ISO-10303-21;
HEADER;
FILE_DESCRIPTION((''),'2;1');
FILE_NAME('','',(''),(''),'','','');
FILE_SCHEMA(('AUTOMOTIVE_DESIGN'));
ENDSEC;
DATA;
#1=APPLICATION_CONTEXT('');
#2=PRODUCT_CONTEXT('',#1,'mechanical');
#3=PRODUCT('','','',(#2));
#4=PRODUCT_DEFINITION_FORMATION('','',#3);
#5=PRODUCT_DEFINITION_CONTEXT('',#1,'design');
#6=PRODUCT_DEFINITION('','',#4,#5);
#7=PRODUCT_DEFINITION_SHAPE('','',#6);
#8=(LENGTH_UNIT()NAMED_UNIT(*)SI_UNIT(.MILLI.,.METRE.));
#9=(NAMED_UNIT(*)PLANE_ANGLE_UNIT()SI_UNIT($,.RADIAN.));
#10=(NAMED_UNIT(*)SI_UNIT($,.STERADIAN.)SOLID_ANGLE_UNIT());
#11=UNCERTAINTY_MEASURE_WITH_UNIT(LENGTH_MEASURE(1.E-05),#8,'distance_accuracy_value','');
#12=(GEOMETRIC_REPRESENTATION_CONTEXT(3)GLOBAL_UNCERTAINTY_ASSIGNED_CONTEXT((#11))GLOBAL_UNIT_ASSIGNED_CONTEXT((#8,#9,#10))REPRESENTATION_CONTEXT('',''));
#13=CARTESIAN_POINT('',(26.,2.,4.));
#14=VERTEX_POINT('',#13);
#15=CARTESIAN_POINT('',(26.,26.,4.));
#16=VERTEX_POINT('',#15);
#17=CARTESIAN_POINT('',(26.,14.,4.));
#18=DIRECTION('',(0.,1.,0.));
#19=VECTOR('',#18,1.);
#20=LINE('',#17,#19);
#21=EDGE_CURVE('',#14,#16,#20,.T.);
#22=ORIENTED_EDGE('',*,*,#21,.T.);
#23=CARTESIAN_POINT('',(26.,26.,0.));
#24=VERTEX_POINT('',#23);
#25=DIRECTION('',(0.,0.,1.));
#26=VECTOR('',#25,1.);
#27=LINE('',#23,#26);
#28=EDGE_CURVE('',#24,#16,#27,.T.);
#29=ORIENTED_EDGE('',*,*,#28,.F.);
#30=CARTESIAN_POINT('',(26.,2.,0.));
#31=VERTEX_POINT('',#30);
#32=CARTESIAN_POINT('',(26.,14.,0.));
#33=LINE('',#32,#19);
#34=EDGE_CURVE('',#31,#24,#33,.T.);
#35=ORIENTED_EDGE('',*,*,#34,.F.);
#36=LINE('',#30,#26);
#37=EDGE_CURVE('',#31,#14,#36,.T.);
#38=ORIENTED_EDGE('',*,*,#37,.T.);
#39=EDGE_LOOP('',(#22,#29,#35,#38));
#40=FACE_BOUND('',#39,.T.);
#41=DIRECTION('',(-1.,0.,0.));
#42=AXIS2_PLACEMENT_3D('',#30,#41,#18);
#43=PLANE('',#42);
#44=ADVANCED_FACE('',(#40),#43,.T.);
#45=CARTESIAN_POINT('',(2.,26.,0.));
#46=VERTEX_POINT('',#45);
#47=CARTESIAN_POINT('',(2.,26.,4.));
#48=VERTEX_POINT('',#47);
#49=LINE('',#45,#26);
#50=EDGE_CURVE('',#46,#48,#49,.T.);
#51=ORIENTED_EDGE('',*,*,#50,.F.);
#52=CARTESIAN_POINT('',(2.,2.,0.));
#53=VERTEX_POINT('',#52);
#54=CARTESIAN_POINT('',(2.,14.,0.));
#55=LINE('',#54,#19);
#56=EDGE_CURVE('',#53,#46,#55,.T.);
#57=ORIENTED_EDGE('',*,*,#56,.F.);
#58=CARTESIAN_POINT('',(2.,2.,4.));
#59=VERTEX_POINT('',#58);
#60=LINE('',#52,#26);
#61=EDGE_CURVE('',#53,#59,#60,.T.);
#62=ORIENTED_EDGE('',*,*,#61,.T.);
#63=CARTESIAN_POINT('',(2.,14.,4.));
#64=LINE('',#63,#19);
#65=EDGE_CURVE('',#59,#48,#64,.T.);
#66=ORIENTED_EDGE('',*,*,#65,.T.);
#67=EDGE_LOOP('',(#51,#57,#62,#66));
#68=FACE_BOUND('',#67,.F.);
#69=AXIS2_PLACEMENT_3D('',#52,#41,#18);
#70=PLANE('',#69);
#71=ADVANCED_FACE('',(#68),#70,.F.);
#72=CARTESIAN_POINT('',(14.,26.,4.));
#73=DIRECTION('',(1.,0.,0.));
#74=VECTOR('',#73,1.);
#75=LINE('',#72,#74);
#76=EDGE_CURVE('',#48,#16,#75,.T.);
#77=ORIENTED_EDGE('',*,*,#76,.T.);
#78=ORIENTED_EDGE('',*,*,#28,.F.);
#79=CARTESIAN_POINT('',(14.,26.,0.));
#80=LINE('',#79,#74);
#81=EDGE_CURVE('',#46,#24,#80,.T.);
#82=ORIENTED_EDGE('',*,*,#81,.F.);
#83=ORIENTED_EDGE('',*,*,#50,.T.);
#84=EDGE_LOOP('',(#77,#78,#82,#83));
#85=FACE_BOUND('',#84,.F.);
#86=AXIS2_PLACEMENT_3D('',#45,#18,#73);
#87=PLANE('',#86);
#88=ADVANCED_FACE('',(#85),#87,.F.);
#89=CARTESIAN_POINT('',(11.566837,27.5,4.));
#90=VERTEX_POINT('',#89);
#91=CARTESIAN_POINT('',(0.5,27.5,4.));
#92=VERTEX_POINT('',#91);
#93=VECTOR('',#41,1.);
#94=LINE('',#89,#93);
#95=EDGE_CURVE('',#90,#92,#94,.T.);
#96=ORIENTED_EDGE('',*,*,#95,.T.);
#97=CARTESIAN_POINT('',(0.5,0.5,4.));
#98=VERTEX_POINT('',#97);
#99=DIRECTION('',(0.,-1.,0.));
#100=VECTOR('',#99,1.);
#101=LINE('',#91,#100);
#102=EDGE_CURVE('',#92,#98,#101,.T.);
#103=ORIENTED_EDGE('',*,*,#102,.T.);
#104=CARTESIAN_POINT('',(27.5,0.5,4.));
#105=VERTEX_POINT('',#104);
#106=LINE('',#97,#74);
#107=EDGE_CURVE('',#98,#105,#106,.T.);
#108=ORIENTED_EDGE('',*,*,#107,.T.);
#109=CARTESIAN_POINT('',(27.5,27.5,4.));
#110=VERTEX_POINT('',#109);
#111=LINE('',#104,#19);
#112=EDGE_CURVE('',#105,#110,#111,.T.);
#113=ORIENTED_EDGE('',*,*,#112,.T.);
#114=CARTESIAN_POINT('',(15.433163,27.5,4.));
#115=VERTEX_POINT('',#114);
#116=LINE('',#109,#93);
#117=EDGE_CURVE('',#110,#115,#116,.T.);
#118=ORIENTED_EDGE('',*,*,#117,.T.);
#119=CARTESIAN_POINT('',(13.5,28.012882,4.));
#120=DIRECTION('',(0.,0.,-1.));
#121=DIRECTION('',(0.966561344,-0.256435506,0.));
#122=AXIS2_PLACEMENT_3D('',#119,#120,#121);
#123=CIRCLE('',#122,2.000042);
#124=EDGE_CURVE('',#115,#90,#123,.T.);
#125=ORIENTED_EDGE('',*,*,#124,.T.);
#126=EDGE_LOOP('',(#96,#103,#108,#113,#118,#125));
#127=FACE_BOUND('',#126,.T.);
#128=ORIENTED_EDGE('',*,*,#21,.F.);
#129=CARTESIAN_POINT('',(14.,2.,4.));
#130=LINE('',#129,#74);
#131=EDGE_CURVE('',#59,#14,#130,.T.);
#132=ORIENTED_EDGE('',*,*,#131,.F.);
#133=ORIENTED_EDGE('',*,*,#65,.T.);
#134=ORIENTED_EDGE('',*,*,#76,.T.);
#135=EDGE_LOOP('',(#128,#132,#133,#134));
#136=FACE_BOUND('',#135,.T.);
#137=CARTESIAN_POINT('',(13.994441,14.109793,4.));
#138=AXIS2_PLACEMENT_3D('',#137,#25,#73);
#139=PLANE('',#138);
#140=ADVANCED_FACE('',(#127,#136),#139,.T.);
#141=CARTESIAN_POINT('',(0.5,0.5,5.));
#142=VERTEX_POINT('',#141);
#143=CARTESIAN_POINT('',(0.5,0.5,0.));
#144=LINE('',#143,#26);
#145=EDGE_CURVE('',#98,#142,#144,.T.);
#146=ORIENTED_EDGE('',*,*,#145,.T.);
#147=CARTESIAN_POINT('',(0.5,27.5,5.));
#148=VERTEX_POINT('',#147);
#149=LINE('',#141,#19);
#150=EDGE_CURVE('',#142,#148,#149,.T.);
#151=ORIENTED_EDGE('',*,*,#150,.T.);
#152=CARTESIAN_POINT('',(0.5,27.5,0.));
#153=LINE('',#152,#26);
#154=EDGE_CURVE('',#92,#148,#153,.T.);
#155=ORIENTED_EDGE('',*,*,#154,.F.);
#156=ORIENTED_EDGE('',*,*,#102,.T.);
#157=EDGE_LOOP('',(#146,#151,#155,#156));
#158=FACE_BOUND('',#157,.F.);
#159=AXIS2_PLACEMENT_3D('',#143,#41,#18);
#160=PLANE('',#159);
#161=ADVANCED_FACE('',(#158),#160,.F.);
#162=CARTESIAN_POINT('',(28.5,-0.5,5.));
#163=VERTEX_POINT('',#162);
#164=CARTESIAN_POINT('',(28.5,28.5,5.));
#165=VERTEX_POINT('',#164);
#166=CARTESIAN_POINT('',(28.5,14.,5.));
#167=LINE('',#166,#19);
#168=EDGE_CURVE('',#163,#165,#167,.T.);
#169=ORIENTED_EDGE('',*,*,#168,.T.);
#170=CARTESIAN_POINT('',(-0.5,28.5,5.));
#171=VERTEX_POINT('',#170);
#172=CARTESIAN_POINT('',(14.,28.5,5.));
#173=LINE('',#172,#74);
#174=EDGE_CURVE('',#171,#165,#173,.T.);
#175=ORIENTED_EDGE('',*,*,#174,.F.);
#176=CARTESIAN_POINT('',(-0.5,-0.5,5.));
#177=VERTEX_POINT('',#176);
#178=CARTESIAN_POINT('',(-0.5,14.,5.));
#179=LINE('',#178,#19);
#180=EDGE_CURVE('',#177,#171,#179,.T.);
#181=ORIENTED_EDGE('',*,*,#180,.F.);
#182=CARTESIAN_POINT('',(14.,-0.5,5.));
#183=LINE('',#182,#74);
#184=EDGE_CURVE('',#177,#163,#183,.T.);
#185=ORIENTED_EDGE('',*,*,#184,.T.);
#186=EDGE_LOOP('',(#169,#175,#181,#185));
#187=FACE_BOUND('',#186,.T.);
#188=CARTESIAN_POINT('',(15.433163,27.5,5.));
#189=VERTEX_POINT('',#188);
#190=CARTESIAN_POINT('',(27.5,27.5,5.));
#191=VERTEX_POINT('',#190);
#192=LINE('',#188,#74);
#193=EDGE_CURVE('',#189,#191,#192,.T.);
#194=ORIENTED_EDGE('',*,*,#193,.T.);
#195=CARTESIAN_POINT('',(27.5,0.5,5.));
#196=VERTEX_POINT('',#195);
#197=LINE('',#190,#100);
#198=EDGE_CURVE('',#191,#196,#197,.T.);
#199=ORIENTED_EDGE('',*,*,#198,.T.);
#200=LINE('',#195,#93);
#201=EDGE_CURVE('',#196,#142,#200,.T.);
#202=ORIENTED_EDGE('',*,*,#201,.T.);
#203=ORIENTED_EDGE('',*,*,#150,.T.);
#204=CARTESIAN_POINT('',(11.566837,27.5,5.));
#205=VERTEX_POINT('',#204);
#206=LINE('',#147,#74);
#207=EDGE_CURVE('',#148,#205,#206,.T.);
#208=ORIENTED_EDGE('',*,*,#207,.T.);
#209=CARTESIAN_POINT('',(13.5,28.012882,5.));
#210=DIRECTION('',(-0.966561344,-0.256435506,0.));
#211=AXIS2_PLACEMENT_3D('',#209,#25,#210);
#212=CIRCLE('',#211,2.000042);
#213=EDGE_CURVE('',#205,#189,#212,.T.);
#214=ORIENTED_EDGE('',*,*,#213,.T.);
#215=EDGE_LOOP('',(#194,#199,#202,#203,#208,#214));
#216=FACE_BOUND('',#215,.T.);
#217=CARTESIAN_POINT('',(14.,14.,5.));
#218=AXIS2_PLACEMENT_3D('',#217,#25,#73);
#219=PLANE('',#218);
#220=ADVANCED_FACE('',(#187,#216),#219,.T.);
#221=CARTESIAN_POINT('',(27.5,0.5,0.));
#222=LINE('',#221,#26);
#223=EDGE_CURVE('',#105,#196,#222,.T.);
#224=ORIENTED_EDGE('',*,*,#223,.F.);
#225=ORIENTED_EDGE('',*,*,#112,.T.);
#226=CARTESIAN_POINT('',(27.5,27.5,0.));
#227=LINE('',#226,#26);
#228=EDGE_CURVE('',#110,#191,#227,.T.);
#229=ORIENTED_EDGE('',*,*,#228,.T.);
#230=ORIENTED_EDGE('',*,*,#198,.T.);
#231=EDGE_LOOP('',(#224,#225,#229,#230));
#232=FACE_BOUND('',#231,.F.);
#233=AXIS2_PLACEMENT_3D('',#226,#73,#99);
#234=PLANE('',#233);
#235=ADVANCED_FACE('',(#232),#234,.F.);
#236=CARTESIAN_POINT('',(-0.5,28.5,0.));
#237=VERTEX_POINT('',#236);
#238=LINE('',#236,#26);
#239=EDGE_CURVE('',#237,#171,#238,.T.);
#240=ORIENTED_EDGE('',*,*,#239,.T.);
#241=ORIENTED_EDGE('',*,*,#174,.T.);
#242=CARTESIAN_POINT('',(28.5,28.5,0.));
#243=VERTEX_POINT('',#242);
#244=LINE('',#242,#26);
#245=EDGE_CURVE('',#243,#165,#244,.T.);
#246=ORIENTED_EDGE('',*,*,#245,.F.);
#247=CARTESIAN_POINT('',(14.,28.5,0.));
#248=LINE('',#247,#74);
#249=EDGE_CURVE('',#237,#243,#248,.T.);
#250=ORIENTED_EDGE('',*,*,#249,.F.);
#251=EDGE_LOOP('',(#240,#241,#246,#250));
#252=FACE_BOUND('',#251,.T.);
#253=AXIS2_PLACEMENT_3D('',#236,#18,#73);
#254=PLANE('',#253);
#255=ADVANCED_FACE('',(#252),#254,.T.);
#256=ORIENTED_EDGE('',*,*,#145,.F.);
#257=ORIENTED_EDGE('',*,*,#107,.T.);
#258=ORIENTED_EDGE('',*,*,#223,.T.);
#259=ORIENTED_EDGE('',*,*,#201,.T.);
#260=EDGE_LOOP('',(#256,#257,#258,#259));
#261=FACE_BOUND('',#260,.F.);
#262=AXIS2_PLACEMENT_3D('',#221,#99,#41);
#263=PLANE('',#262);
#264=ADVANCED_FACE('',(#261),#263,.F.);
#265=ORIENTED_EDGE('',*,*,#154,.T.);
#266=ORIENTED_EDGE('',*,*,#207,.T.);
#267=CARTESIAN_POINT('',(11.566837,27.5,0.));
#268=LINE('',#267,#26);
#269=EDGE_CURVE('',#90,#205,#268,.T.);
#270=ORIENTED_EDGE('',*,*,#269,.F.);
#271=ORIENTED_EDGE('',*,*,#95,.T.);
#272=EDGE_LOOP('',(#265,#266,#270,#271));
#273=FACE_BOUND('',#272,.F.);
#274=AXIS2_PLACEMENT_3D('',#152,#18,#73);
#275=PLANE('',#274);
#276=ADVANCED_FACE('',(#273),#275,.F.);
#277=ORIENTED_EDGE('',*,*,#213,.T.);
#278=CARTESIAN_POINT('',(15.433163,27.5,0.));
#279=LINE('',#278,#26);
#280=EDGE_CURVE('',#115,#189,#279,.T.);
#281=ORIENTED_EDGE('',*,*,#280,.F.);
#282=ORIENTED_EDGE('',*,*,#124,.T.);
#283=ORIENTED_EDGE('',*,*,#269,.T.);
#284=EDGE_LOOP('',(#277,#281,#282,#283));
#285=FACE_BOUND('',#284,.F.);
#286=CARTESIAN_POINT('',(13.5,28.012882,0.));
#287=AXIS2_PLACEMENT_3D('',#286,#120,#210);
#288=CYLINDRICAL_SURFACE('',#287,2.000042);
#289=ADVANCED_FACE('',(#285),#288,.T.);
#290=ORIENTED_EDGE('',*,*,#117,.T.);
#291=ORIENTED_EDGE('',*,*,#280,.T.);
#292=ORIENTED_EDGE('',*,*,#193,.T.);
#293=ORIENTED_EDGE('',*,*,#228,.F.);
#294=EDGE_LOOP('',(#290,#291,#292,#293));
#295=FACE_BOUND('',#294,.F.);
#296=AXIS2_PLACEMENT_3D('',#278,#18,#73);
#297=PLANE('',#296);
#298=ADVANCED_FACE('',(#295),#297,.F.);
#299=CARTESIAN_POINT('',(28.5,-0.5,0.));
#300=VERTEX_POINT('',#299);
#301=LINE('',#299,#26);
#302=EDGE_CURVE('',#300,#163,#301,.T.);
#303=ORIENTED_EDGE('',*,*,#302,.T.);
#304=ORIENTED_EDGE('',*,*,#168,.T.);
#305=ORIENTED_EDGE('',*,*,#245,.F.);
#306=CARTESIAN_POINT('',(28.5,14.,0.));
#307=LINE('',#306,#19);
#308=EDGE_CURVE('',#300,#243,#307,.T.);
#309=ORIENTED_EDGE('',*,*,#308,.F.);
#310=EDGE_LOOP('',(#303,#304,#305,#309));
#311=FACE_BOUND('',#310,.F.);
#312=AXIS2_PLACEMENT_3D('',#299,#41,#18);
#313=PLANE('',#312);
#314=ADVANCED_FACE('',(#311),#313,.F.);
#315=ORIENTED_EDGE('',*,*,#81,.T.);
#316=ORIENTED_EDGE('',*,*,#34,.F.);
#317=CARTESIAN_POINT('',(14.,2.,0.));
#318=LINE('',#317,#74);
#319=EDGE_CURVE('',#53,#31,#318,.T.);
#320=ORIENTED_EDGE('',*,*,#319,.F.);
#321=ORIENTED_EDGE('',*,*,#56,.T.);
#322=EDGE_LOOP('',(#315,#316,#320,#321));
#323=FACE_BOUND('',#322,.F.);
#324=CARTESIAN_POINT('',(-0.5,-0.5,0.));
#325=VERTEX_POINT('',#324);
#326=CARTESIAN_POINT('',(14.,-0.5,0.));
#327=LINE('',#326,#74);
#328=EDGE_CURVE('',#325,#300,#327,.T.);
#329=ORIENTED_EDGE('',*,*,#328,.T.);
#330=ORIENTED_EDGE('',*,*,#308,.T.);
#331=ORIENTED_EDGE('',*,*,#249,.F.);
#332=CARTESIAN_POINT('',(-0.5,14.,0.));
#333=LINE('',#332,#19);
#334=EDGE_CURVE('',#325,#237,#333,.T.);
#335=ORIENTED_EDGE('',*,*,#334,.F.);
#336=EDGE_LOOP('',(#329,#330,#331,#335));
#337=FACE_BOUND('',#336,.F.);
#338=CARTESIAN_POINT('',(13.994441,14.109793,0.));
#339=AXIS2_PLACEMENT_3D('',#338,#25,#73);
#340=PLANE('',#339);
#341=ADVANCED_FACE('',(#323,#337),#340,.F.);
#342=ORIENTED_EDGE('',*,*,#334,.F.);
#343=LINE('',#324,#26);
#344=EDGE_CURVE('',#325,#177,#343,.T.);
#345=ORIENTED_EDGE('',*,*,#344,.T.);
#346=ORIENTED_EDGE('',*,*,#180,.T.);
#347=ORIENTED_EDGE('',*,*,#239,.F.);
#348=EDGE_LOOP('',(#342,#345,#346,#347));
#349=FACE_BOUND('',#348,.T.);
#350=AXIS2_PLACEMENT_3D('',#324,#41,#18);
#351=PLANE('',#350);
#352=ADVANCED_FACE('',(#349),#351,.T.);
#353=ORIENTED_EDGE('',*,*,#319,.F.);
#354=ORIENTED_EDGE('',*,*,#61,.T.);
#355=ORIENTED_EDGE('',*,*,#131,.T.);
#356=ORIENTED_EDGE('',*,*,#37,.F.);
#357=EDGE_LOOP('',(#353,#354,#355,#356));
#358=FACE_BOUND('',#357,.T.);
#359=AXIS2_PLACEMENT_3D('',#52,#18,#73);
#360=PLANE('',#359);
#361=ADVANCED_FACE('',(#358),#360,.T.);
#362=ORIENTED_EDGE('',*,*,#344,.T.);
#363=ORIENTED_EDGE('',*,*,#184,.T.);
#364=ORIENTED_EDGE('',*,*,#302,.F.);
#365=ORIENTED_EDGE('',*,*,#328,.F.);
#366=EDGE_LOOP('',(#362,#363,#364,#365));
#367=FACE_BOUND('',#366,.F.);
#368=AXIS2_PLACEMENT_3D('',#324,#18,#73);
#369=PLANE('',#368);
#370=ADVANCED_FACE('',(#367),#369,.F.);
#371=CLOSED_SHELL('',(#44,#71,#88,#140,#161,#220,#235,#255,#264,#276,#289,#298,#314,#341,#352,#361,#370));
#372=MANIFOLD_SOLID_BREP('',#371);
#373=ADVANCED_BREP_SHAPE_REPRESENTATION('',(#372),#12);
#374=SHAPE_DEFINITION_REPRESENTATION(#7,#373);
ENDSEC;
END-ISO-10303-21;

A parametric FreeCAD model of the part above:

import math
import FreeCAD as App
import Part
import Sketcher

V = App.Vector

doc = App.newDocument("Part")
params = doc.addObject("Spreadsheet::Sheet", "Params")
for row, (alias, value) in enumerate([
    ("sketch1_width", "29 mm"),
    ("sketch1_width2", "27 mm"),
    ("pad1_length", "5 mm"),
    ("sketch2_width", "27 mm"),
    ("sketch2_width2", "24 mm"),
    ("pad2_length", "4 mm"),
], start=1):
    params.set(f"A{row}", alias)
    params.set(f"B{row}", "=" + value)
    params.setAlias(f"B{row}", alias)

body = doc.addObject("PartDesign::Body", "Body")

# Sketch on XY plane
sketch1 = body.newObject("Sketcher::SketchObject", "Sketch")
sketch1.AttachmentSupport = (doc.getObject("XY_Plane"), [""])
sketch1.MapMode = "FlatFace"
sketch1.addGeometry([
    Part.LineSegment(V(-0.5, 28.5, 0), V(-0.5, -0.5, 0)),  # 0
    Part.LineSegment(V(-0.5, -0.5, 0), V(28.5, -0.5, 0)),  # 1
    Part.LineSegment(V(28.5, -0.5, 0), V(28.5, 28.5, 0)),  # 2
    Part.LineSegment(V(28.5, 28.5, 0), V(-0.5, 28.5, 0)),  # 3
    Part.LineSegment(V(0.5, 0.5, 0), V(0.5, 27.5, 0)),  # 4
    Part.LineSegment(V(0.5, 27.5, 0), V(11.6, 27.5, 0)),  # 5
    Part.ArcOfCircle(Part.Circle(V(13.5, 28, 0), V(0, 0, 1), 2), math.radians(-165), math.radians(-15)),  # 6
    Part.LineSegment(V(15.4, 27.5, 0), V(27.5, 27.5, 0)),  # 7
    Part.LineSegment(V(27.5, 27.5, 0), V(27.5, 0.5, 0)),  # 8
    Part.LineSegment(V(27.5, 0.5, 0), V(0.5, 0.5, 0)),  # 9
], False)
sketch1.addConstraint([
    Sketcher.Constraint("Coincident", 0, 2, 1, 1),
    Sketcher.Constraint("Coincident", 1, 2, 2, 1),
    Sketcher.Constraint("Coincident", 2, 2, 3, 1),
    Sketcher.Constraint("Coincident", 3, 2, 0, 1),
    Sketcher.Constraint("Coincident", 4, 2, 5, 1),
    Sketcher.Constraint("Coincident", 5, 2, 6, 1),
    Sketcher.Constraint("Coincident", 6, 2, 7, 1),
    Sketcher.Constraint("Coincident", 7, 2, 8, 1),
    Sketcher.Constraint("Coincident", 8, 2, 9, 1),
    Sketcher.Constraint("Coincident", 9, 2, 4, 1),
    Sketcher.Constraint("Vertical", 0),
    Sketcher.Constraint("Horizontal", 1),
    Sketcher.Constraint("Vertical", 2),
    Sketcher.Constraint("Horizontal", 3),
    Sketcher.Constraint("Vertical", 4),
    Sketcher.Constraint("Horizontal", 5),
    Sketcher.Constraint("Horizontal", 7),
    Sketcher.Constraint("Vertical", 8),
    Sketcher.Constraint("Horizontal", 9),
    Sketcher.Constraint("Symmetric", 0, 2, 9, 2, -1, 1),
    Sketcher.Constraint("Horizontal", 5, 2, 6, 2),
    Sketcher.Constraint("Equal", 3, 0),
    Sketcher.Constraint("Equal", 9, 4),
    Sketcher.Constraint("DistanceX", 1, 1, 1, 2, 29.0),
    Sketcher.Constraint("DistanceX", 9, 2, 9, 1, 27.0),
    Sketcher.Constraint("DistanceX", 0, 2, 6, 3, 14.0),
    Sketcher.Constraint("DistanceX", 3, 2, 4, 2, 1.0),
    Sketcher.Constraint("DistanceY", 4, 2, 3, 2, 1.0),
    Sketcher.Constraint("Radius", 6, 2.000042),
    Sketcher.Constraint("DistanceX", 5, 1, 5, 2, 11.066837),
])
sketch1.setExpression("Constraints[23]", "Params.sketch1_width")
sketch1.setExpression("Constraints[24]", "Params.sketch1_width2")
pad1 = body.newObject("PartDesign::Pad", "Pad")
pad1.Profile = sketch1
pad1.setExpression("Length", "Params.pad1_length")

# Sketch on XY plane
sketch2 = body.newObject("Sketcher::SketchObject", "Sketch001")
sketch2.AttachmentSupport = (doc.getObject("XY_Plane"), [""])
sketch2.MapMode = "FlatFace"
sketch2.addGeometry([
    Part.ArcOfCircle(Part.Circle(V(13.5, 28, 0), V(0, 0, 1), 2), math.radians(-165), math.radians(-15)),  # 0
    Part.LineSegment(V(11.6, 27.5, 0), V(0.5, 27.5, 0)),  # 1
    Part.LineSegment(V(0.5, 27.5, 0), V(0.5, 0.5, 0)),  # 2
    Part.LineSegment(V(0.5, 0.5, 0), V(27.5, 0.5, 0)),  # 3
    Part.LineSegment(V(27.5, 0.5, 0), V(27.5, 27.5, 0)),  # 4
    Part.LineSegment(V(27.5, 27.5, 0), V(15.4, 27.5, 0)),  # 5
    Part.LineSegment(V(26, 2, 0), V(2, 2, 0)),  # 6
    Part.LineSegment(V(2, 2, 0), V(2, 26, 0)),  # 7
    Part.LineSegment(V(2, 26, 0), V(26, 26, 0)),  # 8
    Part.LineSegment(V(26, 26, 0), V(26, 2, 0)),  # 9
], False)
sketch2.addConstraint([
    Sketcher.Constraint("Coincident", 0, 1, 1, 1),
    Sketcher.Constraint("Coincident", 1, 2, 2, 1),
    Sketcher.Constraint("Coincident", 2, 2, 3, 1),
    Sketcher.Constraint("Coincident", 3, 2, 4, 1),
    Sketcher.Constraint("Coincident", 4, 2, 5, 1),
    Sketcher.Constraint("Coincident", 5, 2, 0, 2),
    Sketcher.Constraint("Coincident", 6, 2, 7, 1),
    Sketcher.Constraint("Coincident", 7, 2, 8, 1),
    Sketcher.Constraint("Coincident", 8, 2, 9, 1),
    Sketcher.Constraint("Coincident", 9, 2, 6, 1),
    Sketcher.Constraint("Horizontal", 1),
    Sketcher.Constraint("Vertical", 2),
    Sketcher.Constraint("Horizontal", 3),
    Sketcher.Constraint("Vertical", 4),
    Sketcher.Constraint("Horizontal", 5),
    Sketcher.Constraint("Horizontal", 6),
    Sketcher.Constraint("Vertical", 7),
    Sketcher.Constraint("Horizontal", 8),
    Sketcher.Constraint("Vertical", 9),
    Sketcher.Constraint("Horizontal", 1, 2, 4, 2),
    Sketcher.Constraint("Equal", 3, 2),
    Sketcher.Constraint("Equal", 8, 7),
    Sketcher.Constraint("DistanceX", 3, 1, 3, 2, 27.0),
    Sketcher.Constraint("DistanceX", 6, 2, 6, 1, 24.0),
    Sketcher.Constraint("DistanceX", -1, 1, 6, 2, 2.0),
    Sketcher.Constraint("DistanceY", -1, 1, 6, 2, 2.0),
    Sketcher.Constraint("DistanceX", 1, 2, 0, 3, 13.0),
    Sketcher.Constraint("DistanceX", -1, 1, 0, 3, 13.5),
    Sketcher.Constraint("DistanceY", -1, 1, 0, 1, 27.5),
    Sketcher.Constraint("Radius", 0, 2.000042),
    Sketcher.Constraint("DistanceX", 1, 2, 1, 1, 11.066837),
])
sketch2.setExpression("Constraints[22]", "Params.sketch2_width")
sketch2.setExpression("Constraints[23]", "Params.sketch2_width2")
pad2 = body.newObject("PartDesign::Pad", "Pad001")
pad2.Profile = sketch2
pad2.setExpression("Length", "Params.pad2_length")

doc.recompute()
